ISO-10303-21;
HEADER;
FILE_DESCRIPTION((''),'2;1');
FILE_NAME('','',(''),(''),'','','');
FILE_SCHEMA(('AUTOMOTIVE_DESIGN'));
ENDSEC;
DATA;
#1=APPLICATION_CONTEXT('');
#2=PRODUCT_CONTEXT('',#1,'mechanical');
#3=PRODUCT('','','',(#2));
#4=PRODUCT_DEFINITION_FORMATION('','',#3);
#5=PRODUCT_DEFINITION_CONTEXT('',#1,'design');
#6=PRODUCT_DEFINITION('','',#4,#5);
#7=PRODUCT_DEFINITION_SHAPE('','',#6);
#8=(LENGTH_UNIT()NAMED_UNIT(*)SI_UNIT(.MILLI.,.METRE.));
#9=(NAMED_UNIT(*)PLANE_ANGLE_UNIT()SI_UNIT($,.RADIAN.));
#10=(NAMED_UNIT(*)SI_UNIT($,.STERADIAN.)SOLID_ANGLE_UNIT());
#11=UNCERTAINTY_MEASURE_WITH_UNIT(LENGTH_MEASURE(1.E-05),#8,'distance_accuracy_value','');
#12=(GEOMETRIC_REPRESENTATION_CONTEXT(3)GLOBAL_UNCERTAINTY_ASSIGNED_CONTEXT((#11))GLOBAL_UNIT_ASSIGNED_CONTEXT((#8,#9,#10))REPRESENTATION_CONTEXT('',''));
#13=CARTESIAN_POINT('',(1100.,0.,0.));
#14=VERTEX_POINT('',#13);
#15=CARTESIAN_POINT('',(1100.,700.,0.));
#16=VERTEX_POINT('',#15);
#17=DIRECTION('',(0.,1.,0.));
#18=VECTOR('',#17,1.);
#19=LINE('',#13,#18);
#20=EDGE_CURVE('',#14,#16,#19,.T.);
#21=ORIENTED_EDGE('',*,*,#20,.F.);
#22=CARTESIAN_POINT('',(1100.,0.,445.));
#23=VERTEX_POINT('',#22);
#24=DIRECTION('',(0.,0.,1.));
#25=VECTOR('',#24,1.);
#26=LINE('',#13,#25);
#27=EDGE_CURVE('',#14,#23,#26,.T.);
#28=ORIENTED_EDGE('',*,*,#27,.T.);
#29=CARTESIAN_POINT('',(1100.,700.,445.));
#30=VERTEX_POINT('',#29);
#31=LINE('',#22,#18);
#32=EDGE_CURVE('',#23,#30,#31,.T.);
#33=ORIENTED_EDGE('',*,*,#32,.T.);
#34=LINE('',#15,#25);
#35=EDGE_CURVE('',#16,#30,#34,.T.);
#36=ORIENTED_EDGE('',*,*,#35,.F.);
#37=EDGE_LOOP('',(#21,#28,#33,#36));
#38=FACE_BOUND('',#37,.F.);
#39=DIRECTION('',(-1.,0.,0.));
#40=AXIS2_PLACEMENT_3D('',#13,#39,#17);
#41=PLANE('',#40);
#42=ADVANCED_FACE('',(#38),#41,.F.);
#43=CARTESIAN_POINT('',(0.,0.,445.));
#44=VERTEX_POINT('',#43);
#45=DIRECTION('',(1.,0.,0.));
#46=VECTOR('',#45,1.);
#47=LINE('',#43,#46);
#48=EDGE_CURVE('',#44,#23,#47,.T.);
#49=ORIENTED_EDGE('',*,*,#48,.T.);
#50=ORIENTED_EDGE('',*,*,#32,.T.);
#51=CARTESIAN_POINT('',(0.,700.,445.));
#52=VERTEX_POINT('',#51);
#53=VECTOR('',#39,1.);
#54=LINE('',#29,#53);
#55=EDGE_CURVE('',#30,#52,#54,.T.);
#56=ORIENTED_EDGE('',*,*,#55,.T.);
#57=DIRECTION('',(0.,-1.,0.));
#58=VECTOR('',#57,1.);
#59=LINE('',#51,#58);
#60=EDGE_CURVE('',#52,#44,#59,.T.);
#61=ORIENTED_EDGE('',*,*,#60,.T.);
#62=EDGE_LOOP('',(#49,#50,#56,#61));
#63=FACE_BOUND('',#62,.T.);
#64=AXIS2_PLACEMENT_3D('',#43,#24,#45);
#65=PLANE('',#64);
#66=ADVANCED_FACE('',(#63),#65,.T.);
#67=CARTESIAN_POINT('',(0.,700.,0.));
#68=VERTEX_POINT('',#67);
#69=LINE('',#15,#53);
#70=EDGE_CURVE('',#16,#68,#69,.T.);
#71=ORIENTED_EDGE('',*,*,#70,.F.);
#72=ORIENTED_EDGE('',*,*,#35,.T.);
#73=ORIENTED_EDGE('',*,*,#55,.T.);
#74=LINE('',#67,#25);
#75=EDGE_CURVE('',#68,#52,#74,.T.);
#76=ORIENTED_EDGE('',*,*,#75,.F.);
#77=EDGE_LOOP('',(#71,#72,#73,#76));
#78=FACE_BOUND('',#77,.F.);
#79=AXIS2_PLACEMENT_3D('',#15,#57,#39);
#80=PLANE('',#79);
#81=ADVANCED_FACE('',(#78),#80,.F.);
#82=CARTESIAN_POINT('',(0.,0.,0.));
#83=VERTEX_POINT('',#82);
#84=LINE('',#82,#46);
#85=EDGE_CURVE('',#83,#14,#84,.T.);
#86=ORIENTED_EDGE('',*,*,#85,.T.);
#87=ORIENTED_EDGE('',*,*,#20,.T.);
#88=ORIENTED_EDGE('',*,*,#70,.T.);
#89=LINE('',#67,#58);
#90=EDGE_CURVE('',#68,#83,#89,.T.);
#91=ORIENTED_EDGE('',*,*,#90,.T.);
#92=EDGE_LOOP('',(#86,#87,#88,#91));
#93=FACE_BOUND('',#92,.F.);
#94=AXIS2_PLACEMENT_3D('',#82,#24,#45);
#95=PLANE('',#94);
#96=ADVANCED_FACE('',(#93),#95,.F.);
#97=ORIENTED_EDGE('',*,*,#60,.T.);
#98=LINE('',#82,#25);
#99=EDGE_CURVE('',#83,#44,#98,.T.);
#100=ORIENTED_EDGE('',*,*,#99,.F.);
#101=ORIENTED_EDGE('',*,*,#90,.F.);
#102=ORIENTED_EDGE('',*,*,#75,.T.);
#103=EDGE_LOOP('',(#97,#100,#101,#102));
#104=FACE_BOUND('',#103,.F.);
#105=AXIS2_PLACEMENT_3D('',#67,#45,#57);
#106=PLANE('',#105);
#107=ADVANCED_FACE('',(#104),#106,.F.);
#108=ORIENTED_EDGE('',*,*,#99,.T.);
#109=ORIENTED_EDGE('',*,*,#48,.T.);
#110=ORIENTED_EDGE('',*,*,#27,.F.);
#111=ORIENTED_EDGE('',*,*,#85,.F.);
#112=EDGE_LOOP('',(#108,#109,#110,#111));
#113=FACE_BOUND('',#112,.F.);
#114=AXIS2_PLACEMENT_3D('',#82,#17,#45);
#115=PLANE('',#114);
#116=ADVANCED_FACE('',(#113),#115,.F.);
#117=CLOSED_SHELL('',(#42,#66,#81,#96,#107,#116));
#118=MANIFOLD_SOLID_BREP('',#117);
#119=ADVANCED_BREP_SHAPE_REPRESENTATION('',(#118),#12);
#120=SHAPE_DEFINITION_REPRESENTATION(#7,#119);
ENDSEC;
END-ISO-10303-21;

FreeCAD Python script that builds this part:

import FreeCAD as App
import Part
import Sketcher

V = App.Vector

doc = App.newDocument("Part")
body = doc.addObject("PartDesign::Body", "Body")

# Sketch on XY plane
sketch1 = body.newObject("Sketcher::SketchObject", "Sketch")
sketch1.AttachmentSupport = (doc.getObject("XY_Plane"), [""])
sketch1.MapMode = "FlatFace"
sketch1.addGeometry([
    Part.LineSegment(V(0, 700, 0), V(0, 0, 0)),
    Part.LineSegment(V(0, 0, 0), V(1100, 0, 0)),
    Part.LineSegment(V(1100, 0, 0), V(1100, 700, 0)),
    Part.LineSegment(V(1100, 700, 0), V(0, 700, 0)),
], False)
sketch1.addConstraint([
    Sketcher.Constraint("Coincident", 0, 2, 1, 1),
    Sketcher.Constraint("Coincident", 1, 2, 2, 1),
    Sketcher.Constraint("Coincident", 2, 2, 3, 1),
    Sketcher.Constraint("Coincident", 3, 2, 0, 1),
    Sketcher.Constraint("Vertical", 0),
    Sketcher.Constraint("Horizontal", 1),
    Sketcher.Constraint("Vertical", 2),
    Sketcher.Constraint("Horizontal", 3),
    Sketcher.Constraint("Coincident", 0, 2, -1, 1),
    Sketcher.Constraint("DistanceX", 1, 1, 1, 2, 1100.0),
    Sketcher.Constraint("DistanceY", 0, 2, 0, 1, 700.0),
])
pad1 = body.newObject("PartDesign::Pad", "Pad")
pad1.Profile = sketch1
pad1.Length = 445

doc.recompute()
